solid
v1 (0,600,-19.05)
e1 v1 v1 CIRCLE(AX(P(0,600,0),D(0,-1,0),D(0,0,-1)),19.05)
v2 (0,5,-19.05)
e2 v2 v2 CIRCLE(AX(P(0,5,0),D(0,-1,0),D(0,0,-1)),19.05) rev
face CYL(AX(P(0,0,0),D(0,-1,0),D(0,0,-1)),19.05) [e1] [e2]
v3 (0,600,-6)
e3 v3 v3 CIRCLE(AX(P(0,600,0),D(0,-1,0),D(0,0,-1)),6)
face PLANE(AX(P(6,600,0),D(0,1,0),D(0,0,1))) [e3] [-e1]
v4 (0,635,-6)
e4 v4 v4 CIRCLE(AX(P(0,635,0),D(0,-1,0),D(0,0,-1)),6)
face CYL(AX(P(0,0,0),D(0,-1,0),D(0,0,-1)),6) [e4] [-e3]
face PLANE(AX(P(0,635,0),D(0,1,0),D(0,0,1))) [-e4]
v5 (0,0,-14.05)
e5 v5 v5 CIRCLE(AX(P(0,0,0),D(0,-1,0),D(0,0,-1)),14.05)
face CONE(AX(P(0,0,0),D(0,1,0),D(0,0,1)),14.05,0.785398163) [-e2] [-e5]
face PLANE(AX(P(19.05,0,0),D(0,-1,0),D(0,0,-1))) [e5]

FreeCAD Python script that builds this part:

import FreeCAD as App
import Part
import Sketcher

V = App.Vector


def edges_at(feature, points):
    """Names of the edges that pass closest to the given points."""
    edges = feature.Shape.Edges
    near = lambda p: min(range(len(edges)), key=lambda i: edges[i].distToShape(Part.Vertex(*p))[0])
    return sorted({f"Edge{near(p) + 1}" for p in points})

doc = App.newDocument("Part")
body = doc.addObject("PartDesign::Body", "Body")

# Sketch on XY plane
sketch1 = doc.addObject("Sketcher::SketchObject", "Sketch")
body.addObject(sketch1)
sketch1.AttachmentSupport = (doc.XY_Plane, [""])
sketch1.MapMode = "FlatFace"
sketch1.addGeometry(Part.LineSegment(V(6, 635, 0), V(0, 635, 0)), False)
sketch1.addGeometry(Part.LineSegment(V(0, 635, 0), V(0, 0, 0)), False)
sketch1.addGeometry(Part.LineSegment(V(0, 0, 0), V(19, 0, 0)), False)
sketch1.addGeometry(Part.LineSegment(V(19, 0, 0), V(19, 600, 0)), False)
sketch1.addGeometry(Part.LineSegment(V(19, 600, 0), V(6, 600, 0)), False)
sketch1.addGeometry(Part.LineSegment(V(6, 600, 0), V(6, 635, 0)), False)
sketch1.addConstraint(Sketcher.Constraint("Coincident", 0, 2, 1, 1))
sketch1.addConstraint(Sketcher.Constraint("Coincident", 1, 2, 2, 1))
sketch1.addConstraint(Sketcher.Constraint("Coincident", 2, 2, 3, 1))
sketch1.addConstraint(Sketcher.Constraint("Coincident", 3, 2, 4, 1))
sketch1.addConstraint(Sketcher.Constraint("Coincident", 4, 2, 5, 1))
sketch1.addConstraint(Sketcher.Constraint("Coincident", 5, 2, 0, 1))
sketch1.addConstraint(Sketcher.Constraint("Horizontal", 0))
sketch1.addConstraint(Sketcher.Constraint("Vertical", 1))
sketch1.addConstraint(Sketcher.Constraint("Horizontal", 2))
sketch1.addConstraint(Sketcher.Constraint("Vertical", 3))
sketch1.addConstraint(Sketcher.Constraint("Horizontal", 4))
sketch1.addConstraint(Sketcher.Constraint("Vertical", 5))
sketch1.addConstraint(Sketcher.Constraint("Coincident", 1, 2, -1, 1))
sketch1.addConstraint(Sketcher.Constraint("DistanceX", 0, 2, 0, 1, 6.0))
sketch1.addConstraint(Sketcher.Constraint("DistanceY", 1, 2, 1, 1, 635.0))
sketch1.addConstraint(Sketcher.Constraint("DistanceY", 3, 1, 3, 2, 600.0))
sketch1.addConstraint(Sketcher.Constraint("DistanceX", 2, 1, 2, 2, 19.05))
revolution = doc.addObject("PartDesign::Revolution", "Revolution")
body.addObject(revolution)
revolution.Profile = sketch1
revolution.ReferenceAxis = (sketch1, ["V_Axis"])
revolution.Angle = 360
doc.recompute()

chamfer = doc.addObject("PartDesign::Chamfer", "Chamfer")
body.addObject(chamfer)
chamfer.Base = (revolution, edges_at(revolution, [(-19.05, 0, 0)]))
chamfer.Size = 5

doc.recompute()
